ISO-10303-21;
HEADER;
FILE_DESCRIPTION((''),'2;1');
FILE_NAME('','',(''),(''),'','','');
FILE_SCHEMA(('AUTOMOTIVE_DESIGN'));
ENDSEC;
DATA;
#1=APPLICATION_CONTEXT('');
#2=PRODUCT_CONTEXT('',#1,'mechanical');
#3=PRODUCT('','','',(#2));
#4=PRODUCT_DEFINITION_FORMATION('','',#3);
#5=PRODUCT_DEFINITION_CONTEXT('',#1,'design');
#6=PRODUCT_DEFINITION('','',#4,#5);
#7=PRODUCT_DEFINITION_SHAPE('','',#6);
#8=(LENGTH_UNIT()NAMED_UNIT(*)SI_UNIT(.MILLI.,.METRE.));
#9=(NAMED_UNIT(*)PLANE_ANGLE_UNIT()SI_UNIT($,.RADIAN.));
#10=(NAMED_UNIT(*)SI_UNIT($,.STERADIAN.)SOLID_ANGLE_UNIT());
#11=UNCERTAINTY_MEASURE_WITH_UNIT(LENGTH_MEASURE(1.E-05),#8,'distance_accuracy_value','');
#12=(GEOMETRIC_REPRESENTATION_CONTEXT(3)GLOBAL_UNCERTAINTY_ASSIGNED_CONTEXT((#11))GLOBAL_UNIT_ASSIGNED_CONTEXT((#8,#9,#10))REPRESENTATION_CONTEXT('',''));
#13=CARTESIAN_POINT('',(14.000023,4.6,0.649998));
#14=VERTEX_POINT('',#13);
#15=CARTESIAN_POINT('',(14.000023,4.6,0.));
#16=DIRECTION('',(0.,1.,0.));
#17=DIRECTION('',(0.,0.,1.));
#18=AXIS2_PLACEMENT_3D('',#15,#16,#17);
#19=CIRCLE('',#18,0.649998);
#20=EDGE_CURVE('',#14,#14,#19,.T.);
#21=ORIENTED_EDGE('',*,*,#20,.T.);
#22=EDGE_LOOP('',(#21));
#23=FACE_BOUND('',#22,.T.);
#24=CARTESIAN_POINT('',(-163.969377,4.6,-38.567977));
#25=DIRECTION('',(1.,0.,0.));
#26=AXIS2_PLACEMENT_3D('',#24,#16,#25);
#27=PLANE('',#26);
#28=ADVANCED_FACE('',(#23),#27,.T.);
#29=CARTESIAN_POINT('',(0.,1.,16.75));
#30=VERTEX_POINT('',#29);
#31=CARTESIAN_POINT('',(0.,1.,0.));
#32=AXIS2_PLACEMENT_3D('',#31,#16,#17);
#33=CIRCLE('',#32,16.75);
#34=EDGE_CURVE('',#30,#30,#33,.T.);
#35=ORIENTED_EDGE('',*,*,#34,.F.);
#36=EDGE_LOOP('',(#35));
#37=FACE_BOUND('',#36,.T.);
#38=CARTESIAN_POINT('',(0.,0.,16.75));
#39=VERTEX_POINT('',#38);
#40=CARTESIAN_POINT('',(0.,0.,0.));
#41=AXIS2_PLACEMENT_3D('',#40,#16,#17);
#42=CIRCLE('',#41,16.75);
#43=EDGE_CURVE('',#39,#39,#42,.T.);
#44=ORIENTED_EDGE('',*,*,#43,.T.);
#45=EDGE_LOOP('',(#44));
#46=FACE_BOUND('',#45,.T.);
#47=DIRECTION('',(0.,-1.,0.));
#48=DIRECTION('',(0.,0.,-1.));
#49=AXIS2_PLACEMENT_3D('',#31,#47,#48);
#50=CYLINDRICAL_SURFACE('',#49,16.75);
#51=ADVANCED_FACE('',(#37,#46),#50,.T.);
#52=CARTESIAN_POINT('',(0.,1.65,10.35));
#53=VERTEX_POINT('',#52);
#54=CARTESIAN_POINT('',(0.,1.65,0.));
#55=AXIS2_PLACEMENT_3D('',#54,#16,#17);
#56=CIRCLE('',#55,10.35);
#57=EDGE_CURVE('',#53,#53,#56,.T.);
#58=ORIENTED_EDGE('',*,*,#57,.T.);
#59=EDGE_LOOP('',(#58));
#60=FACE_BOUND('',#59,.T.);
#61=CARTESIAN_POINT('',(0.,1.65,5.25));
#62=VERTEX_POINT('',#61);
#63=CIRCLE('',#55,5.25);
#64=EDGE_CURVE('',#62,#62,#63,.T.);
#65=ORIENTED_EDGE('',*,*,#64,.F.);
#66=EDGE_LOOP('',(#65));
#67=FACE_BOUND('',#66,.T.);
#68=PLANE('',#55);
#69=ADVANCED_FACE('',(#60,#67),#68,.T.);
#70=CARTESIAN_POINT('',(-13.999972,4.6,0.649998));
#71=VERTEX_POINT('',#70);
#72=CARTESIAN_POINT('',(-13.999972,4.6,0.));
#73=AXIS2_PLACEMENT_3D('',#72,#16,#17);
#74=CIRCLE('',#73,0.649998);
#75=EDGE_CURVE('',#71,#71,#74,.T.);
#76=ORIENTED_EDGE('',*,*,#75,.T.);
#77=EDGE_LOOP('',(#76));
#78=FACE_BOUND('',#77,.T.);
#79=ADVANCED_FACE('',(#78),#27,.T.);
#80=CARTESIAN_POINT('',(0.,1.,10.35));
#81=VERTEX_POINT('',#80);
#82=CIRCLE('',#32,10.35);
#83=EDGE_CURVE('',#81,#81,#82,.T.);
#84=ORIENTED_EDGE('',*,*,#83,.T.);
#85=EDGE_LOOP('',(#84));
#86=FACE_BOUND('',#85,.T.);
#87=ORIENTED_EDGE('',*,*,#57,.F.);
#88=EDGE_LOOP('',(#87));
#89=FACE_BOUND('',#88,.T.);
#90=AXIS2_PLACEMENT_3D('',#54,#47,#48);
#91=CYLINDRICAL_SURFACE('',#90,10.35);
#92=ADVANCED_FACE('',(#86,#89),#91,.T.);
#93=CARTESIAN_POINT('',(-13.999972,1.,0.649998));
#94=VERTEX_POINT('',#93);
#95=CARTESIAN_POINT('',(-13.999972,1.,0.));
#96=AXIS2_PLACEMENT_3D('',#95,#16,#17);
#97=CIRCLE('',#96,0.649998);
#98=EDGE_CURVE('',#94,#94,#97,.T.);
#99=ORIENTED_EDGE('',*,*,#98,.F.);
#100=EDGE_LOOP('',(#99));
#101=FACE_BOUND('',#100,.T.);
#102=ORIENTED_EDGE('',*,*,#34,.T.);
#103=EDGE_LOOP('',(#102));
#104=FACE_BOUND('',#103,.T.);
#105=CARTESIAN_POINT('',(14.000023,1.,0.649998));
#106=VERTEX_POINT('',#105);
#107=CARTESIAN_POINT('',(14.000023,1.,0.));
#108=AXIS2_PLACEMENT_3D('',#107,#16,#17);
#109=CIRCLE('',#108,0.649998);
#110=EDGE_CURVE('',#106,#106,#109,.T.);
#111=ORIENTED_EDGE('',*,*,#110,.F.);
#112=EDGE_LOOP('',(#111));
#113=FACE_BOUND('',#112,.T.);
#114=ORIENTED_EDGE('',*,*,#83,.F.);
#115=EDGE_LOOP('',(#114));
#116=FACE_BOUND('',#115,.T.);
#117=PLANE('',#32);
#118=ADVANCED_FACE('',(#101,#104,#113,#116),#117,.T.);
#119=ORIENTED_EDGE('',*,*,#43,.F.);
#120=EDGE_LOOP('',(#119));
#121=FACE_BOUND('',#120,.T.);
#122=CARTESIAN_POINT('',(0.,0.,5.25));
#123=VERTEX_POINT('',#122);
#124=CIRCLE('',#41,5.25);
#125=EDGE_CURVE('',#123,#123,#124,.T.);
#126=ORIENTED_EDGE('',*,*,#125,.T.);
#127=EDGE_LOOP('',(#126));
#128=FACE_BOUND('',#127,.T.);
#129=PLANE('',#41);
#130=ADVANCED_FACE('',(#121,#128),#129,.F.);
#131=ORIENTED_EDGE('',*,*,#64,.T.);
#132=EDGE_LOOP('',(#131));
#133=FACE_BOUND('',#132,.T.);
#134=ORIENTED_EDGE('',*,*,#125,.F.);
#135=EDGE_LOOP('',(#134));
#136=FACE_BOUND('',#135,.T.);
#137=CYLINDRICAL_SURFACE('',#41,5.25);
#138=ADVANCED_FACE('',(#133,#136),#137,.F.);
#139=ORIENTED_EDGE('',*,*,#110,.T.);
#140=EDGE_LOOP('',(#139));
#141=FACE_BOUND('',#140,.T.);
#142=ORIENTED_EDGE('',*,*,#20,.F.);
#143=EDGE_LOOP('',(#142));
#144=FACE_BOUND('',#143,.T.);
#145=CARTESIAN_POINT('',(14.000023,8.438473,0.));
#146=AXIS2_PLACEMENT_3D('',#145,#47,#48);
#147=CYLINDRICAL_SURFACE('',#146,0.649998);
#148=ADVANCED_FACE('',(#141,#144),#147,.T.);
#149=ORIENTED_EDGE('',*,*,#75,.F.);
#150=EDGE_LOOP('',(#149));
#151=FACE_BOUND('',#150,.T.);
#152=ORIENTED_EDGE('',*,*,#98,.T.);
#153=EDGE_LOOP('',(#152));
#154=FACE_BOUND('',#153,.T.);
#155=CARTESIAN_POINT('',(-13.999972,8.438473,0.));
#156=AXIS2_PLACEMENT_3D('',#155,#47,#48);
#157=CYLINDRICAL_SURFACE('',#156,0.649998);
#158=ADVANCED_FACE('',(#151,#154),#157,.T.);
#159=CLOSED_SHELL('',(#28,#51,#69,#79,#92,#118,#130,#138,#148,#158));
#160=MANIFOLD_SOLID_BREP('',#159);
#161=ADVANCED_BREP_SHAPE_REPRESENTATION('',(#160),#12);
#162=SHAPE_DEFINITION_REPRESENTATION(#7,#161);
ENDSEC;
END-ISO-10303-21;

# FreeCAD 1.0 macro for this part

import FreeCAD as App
import Part
import Sketcher
from FreeCAD import Vector

doc = App.newDocument("Part")
body = doc.addObject("PartDesign::Body", "Body")

# Sketch on XZ plane
sketch1 = doc.addObject("Sketcher::SketchObject", "Sketch")
body.addObject(sketch1)
sketch1.AttachmentSupport = (doc.XZ_Plane, [""])
sketch1.MapMode = "FlatFace"
sketch1.addGeometry(Part.Circle(Vector(0, 0, 0), Vector(0, 0, 1), 16.75), False)
sketch1.addConstraint(Sketcher.Constraint("Coincident", 0, 3, -1, 1))
sketch1.addConstraint(Sketcher.Constraint("Diameter", 0, 33.5))
pad1 = doc.addObject("PartDesign::Pad", "Pad")
body.addObject(pad1)
pad1.Profile = sketch1
pad1.Length = 1
pad1.Reversed = True

# Sketch on XZ plane
sketch2 = doc.addObject("Sketcher::SketchObject", "Sketch001")
body.addObject(sketch2)
sketch2.AttachmentSupport = (doc.XZ_Plane, [""])
sketch2.MapMode = "FlatFace"
sketch2.AttachmentOffset = App.Placement(Vector(0, 0, -1), App.Rotation())
sketch2.addGeometry(Part.Circle(Vector(0, 0, 0), Vector(0, 0, 1), 10.35), False)
sketch2.addConstraint(Sketcher.Constraint("Coincident", 0, 3, -1, 1))
sketch2.addConstraint(Sketcher.Constraint("Diameter", 0, 20.7))
pad2 = doc.addObject("PartDesign::Pad", "Pad001")
body.addObject(pad2)
pad2.Profile = sketch2
pad2.Length = 0.65
pad2.Reversed = True

# Sketch on XZ plane
sketch3 = doc.addObject("Sketcher::SketchObject", "Sketch002")
body.addObject(sketch3)
sketch3.AttachmentSupport = (doc.XZ_Plane, [""])
sketch3.MapMode = "FlatFace"
sketch3.AttachmentOffset = App.Placement(Vector(0, 0, -1.65), App.Rotation())
sketch3.addGeometry(Part.Circle(Vector(0, 0, 0), Vector(0, 0, 1), 5.25), False)
sketch3.addConstraint(Sketcher.Constraint("Coincident", 0, 3, -1, 1))
sketch3.addConstraint(Sketcher.Constraint("Diameter", 0, 10.5))
pocket1 = doc.addObject("PartDesign::Pocket", "Pocket")
body.addObject(pocket1)
pocket1.Profile = sketch3
pocket1.Type = "ThroughAll"
pocket1.Reversed = True

# Sketch on XZ plane
sketch4 = doc.addObject("Sketcher::SketchObject", "Sketch003")
body.addObject(sketch4)
sketch4.AttachmentSupport = (doc.XZ_Plane, [""])
sketch4.MapMode = "FlatFace"
sketch4.AttachmentOffset = App.Placement(Vector(0, 0, -1), App.Rotation())
sketch4.addGeometry(Part.Circle(Vector(14.000023, 0, 0), Vector(0, 0, 1), 0.649999), False)
sketch4.addGeometry(Part.Circle(Vector(-13.999972, 0, 0), Vector(0, 0, 1), 0.649999), False)
sketch4.addConstraint(Sketcher.Constraint("Equal", 0, 1))
sketch4.addConstraint(Sketcher.Constraint("PointOnObject", 0, 3, -1))
sketch4.addConstraint(Sketcher.Constraint("PointOnObject", 1, 3, -1))
sketch4.addConstraint(Sketcher.Constraint("Diameter", 0, 1.299997))
sketch4.addConstraint(Sketcher.Constraint("DistanceX", -1, 1, 0, 3, 14.000023))
sketch4.addConstraint(Sketcher.Constraint("DistanceX", 1, 3, -1, 1, 13.999972))
pad3 = doc.addObject("PartDesign::Pad", "Pad002")
body.addObject(pad3)
pad3.Profile = sketch4
pad3.Length = 3.6
pad3.Reversed = True

doc.recompute()
